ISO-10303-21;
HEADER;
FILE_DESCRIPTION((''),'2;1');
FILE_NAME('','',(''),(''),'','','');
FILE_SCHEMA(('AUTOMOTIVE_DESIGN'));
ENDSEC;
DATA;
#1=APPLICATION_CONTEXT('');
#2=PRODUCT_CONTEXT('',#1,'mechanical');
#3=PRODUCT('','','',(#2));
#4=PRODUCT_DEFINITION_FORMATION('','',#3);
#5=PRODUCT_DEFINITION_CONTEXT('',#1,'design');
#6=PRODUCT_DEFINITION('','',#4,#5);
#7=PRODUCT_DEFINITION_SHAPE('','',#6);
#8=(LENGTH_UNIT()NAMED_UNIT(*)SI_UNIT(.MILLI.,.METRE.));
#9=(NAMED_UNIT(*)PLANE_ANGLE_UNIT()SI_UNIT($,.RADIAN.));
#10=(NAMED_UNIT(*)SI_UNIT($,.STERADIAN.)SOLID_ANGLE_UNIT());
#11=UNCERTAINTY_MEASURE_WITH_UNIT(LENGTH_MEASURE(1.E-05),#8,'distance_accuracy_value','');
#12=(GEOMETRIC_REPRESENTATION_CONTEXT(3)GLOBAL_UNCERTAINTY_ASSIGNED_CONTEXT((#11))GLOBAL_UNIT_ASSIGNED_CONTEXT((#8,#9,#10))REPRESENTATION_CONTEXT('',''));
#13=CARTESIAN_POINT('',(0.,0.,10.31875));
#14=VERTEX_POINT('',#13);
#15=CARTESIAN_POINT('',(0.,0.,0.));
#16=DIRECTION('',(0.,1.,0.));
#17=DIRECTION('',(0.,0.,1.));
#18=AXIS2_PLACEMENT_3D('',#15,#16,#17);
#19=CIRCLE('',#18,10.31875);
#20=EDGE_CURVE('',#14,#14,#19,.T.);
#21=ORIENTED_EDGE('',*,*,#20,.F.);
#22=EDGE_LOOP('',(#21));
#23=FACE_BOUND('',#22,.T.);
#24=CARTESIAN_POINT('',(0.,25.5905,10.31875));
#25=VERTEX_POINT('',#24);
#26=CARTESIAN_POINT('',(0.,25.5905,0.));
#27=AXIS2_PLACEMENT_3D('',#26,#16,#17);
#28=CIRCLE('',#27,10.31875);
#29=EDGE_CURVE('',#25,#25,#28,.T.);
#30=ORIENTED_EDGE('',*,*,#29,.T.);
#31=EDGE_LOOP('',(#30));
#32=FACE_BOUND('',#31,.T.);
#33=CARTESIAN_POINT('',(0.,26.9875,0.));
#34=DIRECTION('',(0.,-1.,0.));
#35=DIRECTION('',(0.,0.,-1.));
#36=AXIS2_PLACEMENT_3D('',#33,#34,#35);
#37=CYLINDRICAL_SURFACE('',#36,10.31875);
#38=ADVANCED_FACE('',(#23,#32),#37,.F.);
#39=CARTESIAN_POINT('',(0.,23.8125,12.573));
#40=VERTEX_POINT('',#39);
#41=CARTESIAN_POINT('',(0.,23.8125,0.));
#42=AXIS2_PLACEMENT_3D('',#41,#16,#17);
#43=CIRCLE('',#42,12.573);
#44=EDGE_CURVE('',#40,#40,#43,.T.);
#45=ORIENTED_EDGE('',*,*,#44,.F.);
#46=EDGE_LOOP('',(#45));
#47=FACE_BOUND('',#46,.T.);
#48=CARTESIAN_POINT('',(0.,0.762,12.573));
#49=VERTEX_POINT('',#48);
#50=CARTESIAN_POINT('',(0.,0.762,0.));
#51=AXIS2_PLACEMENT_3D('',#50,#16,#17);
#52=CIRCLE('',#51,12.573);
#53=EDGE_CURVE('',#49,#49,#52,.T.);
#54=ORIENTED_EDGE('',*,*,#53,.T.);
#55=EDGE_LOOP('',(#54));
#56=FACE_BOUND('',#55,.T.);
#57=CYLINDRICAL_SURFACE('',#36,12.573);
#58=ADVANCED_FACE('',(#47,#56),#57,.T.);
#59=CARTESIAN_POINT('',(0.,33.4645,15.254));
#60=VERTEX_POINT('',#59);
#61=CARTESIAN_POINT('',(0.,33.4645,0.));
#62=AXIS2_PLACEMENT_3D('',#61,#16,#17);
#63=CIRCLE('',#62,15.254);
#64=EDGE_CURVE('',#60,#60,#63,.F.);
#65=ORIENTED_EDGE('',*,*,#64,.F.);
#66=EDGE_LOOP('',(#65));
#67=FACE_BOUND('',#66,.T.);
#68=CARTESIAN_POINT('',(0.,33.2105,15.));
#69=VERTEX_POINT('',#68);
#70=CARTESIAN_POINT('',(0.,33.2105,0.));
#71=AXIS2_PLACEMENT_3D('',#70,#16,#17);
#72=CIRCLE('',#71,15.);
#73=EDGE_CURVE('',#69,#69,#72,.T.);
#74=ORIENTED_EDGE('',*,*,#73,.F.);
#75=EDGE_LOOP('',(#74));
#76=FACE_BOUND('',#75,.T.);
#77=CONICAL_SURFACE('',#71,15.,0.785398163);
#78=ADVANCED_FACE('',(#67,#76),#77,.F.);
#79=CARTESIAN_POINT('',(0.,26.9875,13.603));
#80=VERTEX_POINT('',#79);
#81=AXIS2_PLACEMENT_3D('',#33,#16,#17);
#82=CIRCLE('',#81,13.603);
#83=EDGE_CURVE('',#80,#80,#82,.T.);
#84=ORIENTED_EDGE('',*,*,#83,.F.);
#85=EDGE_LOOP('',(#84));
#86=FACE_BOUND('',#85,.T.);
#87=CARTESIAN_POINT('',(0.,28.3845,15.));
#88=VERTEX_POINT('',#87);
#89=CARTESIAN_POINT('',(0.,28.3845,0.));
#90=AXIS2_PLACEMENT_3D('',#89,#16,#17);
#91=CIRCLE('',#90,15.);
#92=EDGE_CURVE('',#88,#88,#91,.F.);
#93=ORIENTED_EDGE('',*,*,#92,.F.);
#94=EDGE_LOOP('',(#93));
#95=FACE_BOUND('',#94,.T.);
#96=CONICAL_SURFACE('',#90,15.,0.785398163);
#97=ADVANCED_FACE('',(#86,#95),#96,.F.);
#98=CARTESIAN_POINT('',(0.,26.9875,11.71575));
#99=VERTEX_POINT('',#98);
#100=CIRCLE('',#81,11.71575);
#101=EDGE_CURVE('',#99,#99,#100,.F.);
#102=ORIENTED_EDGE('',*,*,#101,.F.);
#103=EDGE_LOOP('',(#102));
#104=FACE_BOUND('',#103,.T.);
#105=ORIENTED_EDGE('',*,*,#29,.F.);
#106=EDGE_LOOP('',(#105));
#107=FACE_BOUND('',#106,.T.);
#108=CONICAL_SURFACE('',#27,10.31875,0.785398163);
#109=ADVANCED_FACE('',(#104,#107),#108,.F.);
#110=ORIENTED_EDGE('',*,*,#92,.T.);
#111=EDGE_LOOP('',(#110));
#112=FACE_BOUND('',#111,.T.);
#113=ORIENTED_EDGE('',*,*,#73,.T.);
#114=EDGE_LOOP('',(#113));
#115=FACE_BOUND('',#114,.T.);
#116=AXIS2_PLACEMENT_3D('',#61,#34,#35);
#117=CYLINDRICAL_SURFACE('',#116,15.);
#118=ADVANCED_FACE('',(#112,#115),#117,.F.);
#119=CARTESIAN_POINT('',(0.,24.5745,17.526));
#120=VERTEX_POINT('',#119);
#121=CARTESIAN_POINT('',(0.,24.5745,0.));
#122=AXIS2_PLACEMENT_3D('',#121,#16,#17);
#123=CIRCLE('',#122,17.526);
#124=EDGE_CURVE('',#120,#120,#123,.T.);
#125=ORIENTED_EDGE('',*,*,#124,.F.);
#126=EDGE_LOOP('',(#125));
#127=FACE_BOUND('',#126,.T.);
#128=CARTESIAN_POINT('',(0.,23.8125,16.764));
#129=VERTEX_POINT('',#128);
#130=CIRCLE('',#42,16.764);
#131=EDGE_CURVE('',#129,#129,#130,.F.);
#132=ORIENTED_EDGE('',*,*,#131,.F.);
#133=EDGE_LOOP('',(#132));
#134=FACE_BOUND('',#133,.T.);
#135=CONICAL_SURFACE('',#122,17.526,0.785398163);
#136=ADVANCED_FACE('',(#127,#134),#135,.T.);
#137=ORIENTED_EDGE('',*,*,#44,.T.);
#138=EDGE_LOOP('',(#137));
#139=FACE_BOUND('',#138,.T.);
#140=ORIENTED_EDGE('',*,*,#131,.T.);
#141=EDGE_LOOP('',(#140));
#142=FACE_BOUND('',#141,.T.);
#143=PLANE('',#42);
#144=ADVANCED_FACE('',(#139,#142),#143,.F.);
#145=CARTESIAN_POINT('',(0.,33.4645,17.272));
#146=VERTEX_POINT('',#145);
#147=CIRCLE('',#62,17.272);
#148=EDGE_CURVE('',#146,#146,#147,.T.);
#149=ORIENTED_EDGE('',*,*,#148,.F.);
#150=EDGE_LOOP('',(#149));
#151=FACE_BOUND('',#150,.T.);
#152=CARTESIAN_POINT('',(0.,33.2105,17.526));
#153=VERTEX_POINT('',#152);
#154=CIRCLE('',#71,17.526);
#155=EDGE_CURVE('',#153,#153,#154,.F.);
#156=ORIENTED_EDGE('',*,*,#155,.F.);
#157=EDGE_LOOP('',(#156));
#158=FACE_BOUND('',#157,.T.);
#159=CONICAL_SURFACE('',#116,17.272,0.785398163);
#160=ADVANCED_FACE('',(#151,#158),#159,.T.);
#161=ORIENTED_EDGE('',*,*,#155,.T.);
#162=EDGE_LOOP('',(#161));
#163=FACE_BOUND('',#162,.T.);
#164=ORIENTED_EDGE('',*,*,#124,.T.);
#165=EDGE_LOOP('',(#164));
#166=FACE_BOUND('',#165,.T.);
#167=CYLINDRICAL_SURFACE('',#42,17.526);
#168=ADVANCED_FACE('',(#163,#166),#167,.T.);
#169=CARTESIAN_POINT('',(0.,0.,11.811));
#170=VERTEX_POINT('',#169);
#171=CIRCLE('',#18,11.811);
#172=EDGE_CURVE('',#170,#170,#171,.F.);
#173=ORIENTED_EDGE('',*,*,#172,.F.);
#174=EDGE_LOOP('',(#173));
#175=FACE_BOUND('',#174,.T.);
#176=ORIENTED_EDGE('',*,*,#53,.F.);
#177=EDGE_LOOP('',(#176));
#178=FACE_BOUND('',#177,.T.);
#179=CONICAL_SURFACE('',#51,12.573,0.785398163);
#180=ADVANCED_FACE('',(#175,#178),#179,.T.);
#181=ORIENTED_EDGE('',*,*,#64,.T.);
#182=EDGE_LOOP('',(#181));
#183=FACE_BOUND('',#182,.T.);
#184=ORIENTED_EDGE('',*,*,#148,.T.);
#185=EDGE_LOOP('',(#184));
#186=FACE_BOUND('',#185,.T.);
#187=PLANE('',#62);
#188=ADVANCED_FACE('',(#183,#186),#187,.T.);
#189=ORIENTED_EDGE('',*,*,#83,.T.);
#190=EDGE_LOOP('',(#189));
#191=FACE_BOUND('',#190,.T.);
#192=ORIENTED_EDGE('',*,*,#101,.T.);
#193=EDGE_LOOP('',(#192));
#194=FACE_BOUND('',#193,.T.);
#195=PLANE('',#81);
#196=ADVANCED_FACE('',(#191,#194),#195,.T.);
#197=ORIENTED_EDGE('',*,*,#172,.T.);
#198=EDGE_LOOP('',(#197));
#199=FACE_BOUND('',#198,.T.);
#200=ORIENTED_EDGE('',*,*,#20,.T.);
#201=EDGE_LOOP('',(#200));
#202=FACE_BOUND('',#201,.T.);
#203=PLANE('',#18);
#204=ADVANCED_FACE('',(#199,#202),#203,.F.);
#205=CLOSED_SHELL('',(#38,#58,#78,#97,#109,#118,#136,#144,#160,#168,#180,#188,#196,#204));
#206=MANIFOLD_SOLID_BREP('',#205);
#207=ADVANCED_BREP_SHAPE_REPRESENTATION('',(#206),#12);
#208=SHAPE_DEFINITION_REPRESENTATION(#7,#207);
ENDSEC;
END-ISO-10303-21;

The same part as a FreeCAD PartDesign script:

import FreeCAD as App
import Part
import Sketcher
from FreeCAD import Vector
Q = App.Units.Quantity


def edges_at(feature, points):
    """Names of the edges that pass closest to the given points."""
    edges = feature.Shape.Edges
    near = lambda p: min(range(len(edges)), key=lambda i: edges[i].distToShape(Part.Vertex(*p))[0])
    return sorted({f"Edge{near(p) + 1}" for p in points})

doc = App.newDocument("Part")
body = doc.addObject("PartDesign::Body", "Body")

sketch1 = doc.addObject("Sketcher::SketchObject", "Sketch")
body.addObject(sketch1)
sketch1.AttachmentSupport = (doc.XZ_Plane, [""])
sketch1.MapMode = "FlatFace"
sketch1.addGeometry(Part.Circle(Vector(0, 0, 0), Vector(0, 0, 1), 13), False)
sketch1.addGeometry(Part.Circle(Vector(0, 0, 0), Vector(0, 0, 1), 10), False)
sketch1.addConstraint(Sketcher.Constraint("Coincident", 0, 3, -1, 1))
sketch1.addConstraint(Sketcher.Constraint("Coincident", 1, 3, -1, 1))
sketch1.addConstraint(Sketcher.Constraint("Diameter", 0, Q("0.99 in")))
sketch1.addConstraint(Sketcher.Constraint("Diameter", 1, Q("0.8125 in")))
pad1 = doc.addObject("PartDesign::Pad", "Pad")
body.addObject(pad1)
pad1.Profile = sketch1
pad1.Length = Q("1.0625 in")
pad1.Reversed = True

sketch2 = doc.addObject("Sketcher::SketchObject", "Sketch001")
body.addObject(sketch2)
sketch2.AttachmentSupport = (doc.XZ_Plane, [""])
sketch2.MapMode = "FlatFace"
sketch2.AttachmentOffset = App.Placement(Vector(0, 0, -1.0625 * 25.4), App.Rotation())
sketch2.addGeometry(Part.Circle(Vector(0, 0, 0), Vector(0, 0, 1), 18), False)
sketch2.addGeometry(Part.Circle(Vector(0, 0, 0), Vector(0, 0, 1), 10), False)
sketch2.addConstraint(Sketcher.Constraint("Coincident", 0, 3, -1, 1))
sketch2.addConstraint(Sketcher.Constraint("Coincident", 1, 3, -1, 1))
sketch2.addConstraint(Sketcher.Constraint("Diameter", 0, Q("1.38 in")))
sketch2.addConstraint(Sketcher.Constraint("Diameter", 1, Q("0.8125 in")))
pad2 = doc.addObject("PartDesign::Pad", "Pad001")
body.addObject(pad2)
pad2.Profile = sketch2
pad2.Length = Q("0.125 in")

sketch3 = doc.addObject("Sketcher::SketchObject", "Sketch002")
body.addObject(sketch3)
sketch3.AttachmentSupport = (doc.XZ_Plane, [""])
sketch3.MapMode = "FlatFace"
sketch3.AttachmentOffset = App.Placement(Vector(0, 0, -1.0625 * 25.4), App.Rotation())
sketch3.addGeometry(Part.Circle(Vector(0, 0, 0), Vector(0, 0, 1), 18), False)
sketch3.addGeometry(Part.Circle(Vector(0, 0, 0), Vector(0, 0, 1), 15), False)
sketch3.addConstraint(Sketcher.Constraint("Coincident", 0, 3, -1, 1))
sketch3.addConstraint(Sketcher.Constraint("Coincident", 1, 3, -1, 1))
sketch3.addConstraint(Sketcher.Constraint("Diameter", 0, Q("1.38 in")))
sketch3.addConstraint(Sketcher.Constraint("Diameter", 1, 30.0))
pad3 = doc.addObject("PartDesign::Pad", "Pad002")
body.addObject(pad3)
pad3.Profile = sketch3
pad3.Length = Q("0.255 in")
pad3.Reversed = True
doc.recompute()

chamfer = doc.addObject("PartDesign::Chamfer", "Chamfer")
body.addObject(chamfer)
chamfer.Base = (pad3, edges_at(pad3, [(-17.526, 23.812, 0), (-12.573, 0, 0)]))
chamfer.Size = Q("0.03 in")
doc.recompute()

chamfer2 = doc.addObject("PartDesign::Chamfer", "Chamfer001")
body.addObject(chamfer2)
chamfer2.Base = (chamfer, edges_at(chamfer, [(-17.526, 33.465, 0)]))
chamfer2.Size = Q("0.01 in")
doc.recompute()

chamfer3 = doc.addObject("PartDesign::Chamfer", "Chamfer002")
body.addObject(chamfer3)
chamfer3.Base = (chamfer2, edges_at(chamfer2, [(-15, 33.465, 0)]))
chamfer3.Size = Q("0.01 in")
doc.recompute()

chamfer4 = doc.addObject("PartDesign::Chamfer", "Chamfer003")
body.addObject(chamfer4)
chamfer4.Base = (chamfer3, edges_at(chamfer3, [(-15, 26.988, 0)]))
chamfer4.Size = Q("0.055 in")
doc.recompute()

chamfer5 = doc.addObject("PartDesign::Chamfer", "Chamfer004")
body.addObject(chamfer5)
chamfer5.Base = (chamfer4, edges_at(chamfer4, [(-10.319, 26.988, 0)]))
chamfer5.Size = Q("0.055 in")

doc.recompute()
